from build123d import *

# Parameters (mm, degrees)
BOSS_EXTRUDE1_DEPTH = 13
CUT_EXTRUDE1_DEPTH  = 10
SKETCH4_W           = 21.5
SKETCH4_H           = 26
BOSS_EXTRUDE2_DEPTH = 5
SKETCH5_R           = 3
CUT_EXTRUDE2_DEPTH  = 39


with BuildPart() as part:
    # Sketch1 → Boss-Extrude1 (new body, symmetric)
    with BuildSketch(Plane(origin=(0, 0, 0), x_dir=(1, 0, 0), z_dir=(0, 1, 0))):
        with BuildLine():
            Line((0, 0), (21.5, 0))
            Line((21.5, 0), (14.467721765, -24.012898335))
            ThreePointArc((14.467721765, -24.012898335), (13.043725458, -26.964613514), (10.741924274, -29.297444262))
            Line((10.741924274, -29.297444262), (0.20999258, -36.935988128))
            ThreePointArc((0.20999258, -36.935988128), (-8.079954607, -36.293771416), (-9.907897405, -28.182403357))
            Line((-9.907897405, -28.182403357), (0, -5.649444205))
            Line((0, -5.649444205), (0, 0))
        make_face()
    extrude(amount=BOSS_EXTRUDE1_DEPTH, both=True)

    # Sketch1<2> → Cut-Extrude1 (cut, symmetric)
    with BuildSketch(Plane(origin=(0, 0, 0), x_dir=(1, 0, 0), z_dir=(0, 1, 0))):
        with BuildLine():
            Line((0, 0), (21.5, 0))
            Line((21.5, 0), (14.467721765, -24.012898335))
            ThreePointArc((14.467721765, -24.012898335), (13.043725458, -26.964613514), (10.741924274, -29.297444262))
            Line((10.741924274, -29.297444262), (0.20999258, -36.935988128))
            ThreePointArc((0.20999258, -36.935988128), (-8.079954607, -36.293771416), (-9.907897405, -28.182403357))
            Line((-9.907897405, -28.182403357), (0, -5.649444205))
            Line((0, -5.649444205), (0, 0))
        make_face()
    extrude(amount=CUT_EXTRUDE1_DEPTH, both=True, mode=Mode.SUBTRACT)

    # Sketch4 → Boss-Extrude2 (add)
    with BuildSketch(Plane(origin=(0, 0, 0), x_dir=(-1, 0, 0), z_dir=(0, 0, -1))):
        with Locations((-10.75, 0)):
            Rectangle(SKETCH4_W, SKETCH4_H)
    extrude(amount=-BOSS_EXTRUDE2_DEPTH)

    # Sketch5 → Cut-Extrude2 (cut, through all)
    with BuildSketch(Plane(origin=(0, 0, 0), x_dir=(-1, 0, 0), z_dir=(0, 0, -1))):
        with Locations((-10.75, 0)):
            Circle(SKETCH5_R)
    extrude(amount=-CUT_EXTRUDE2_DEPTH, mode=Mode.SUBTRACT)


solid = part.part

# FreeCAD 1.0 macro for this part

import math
import FreeCAD as App
import Part
import Sketcher


def add_polygon(sketch, points):
    """Adds a closed chain of lines whose ends are joined by coincident constraints."""
    first, n = sketch.GeometryCount, len(points)
    for a, b in zip(points, points[1:] + points[:1]):
        sketch.addGeometry(Part.LineSegment(App.Vector(*a, 0), App.Vector(*b, 0)), False)
    for i in range(n):
        sketch.addConstraint(Sketcher.Constraint("Coincident", first + i, 2, first + (i + 1) % n, 1))

doc = App.newDocument("Part")
body = doc.addObject("PartDesign::Body", "Body")
body.AllowCompound = True

sketch1 = body.newObject("Sketcher::SketchObject", "Sketch")
sketch1.AttachmentSupport = (doc.getObject("XZ_Plane"), [""])
sketch1.MapMode = "FlatFace"
sketch1.addGeometry([
    Part.LineSegment(App.Vector(22, 0, 0), App.Vector(0, 0, 0)),
    Part.LineSegment(App.Vector(0, 0, 0), App.Vector(0, 6, 0)),
    Part.LineSegment(App.Vector(0, 6, 0), App.Vector(-10, 28, 0)),
    Part.ArcOfCircle(Part.Circle(App.Vector(-4, 31, 0), App.Vector(0, 0, 1), 7), math.radians(58), math.radians(204)),
    Part.LineSegment(App.Vector(0, 37, 0), App.Vector(11, 29, 0)),
    Part.ArcOfCircle(Part.Circle(App.Vector(5, 21, 0), App.Vector(0, 0, 1), 10), math.radians(16), math.radians(54)),
    Part.LineSegment(App.Vector(14, 24, 0), App.Vector(22, 0, 0)),
], False)
sketch1.addConstraint([
    Sketcher.Constraint("Coincident", 0, 2, 1, 1),
    Sketcher.Constraint("Coincident", 1, 2, 2, 1),
    Sketcher.Constraint("Tangent", 2, 2, 3, 2),
    Sketcher.Constraint("Coincident", 3, 1, 4, 1),
    Sketcher.Constraint("Tangent", 4, 2, 5, 2),
    Sketcher.Constraint("Tangent", 5, 1, 6, 1),
    Sketcher.Constraint("Coincident", 6, 2, 0, 1),
    Sketcher.Constraint("Horizontal", 0),
    Sketcher.Constraint("Vertical", 1),
    Sketcher.Constraint("Coincident", 0, 2, -1, 1),
    Sketcher.Constraint("Radius", 3, 7.0),
    Sketcher.Constraint("Radius", 5, 10.0),
    Sketcher.Constraint("DistanceX", 0, 2, 0, 1, 21.5),
    Sketcher.Constraint("DistanceY", -1, 1, 3, 3, 31.0),
    Sketcher.Constraint("DistanceX", 3, 3, -1, 1, 3.5),
    Sketcher.Constraint("DistanceY", 1, 2, 4, 2, 23.648),
    Sketcher.Constraint("DistanceY", -1, 1, 5, 1, 24.012898),
    Sketcher.Constraint("DistanceX", 3, 1, 5, 3, 4.660798),
    Sketcher.Constraint("DistanceY", 5, 3, 5, 1, 2.810502),
])
pad1 = body.newObject("PartDesign::Pad", "Pad")
pad1.Profile = sketch1
pad1.Length = 26
pad1.Midplane = True

sketch2 = body.newObject("Sketcher::SketchObject", "Sketch001")
sketch2.AttachmentSupport = (doc.getObject("XZ_Plane"), [""])
sketch2.MapMode = "FlatFace"
sketch2.addGeometry([
    Part.LineSegment(App.Vector(22, 0, 0), App.Vector(0, 0, 0)),
    Part.LineSegment(App.Vector(0, 0, 0), App.Vector(0, 6, 0)),
    Part.LineSegment(App.Vector(0, 6, 0), App.Vector(-10, 28, 0)),
    Part.ArcOfCircle(Part.Circle(App.Vector(-4, 31, 0), App.Vector(0, 0, 1), 7), math.radians(58), math.radians(204)),
    Part.LineSegment(App.Vector(0, 37, 0), App.Vector(11, 29, 0)),
    Part.ArcOfCircle(Part.Circle(App.Vector(5, 21, 0), App.Vector(0, 0, 1), 10), math.radians(16), math.radians(54)),
    Part.LineSegment(App.Vector(14, 24, 0), App.Vector(22, 0, 0)),
], False)
sketch2.addConstraint([
    Sketcher.Constraint("Coincident", 0, 2, 1, 1),
    Sketcher.Constraint("Coincident", 1, 2, 2, 1),
    Sketcher.Constraint("Tangent", 2, 2, 3, 2),
    Sketcher.Constraint("Coincident", 3, 1, 4, 1),
    Sketcher.Constraint("Tangent", 4, 2, 5, 2),
    Sketcher.Constraint("Tangent", 5, 1, 6, 1),
    Sketcher.Constraint("Coincident", 6, 2, 0, 1),
    Sketcher.Constraint("Horizontal", 0),
    Sketcher.Constraint("Vertical", 1),
    Sketcher.Constraint("Coincident", 0, 2, -1, 1),
    Sketcher.Constraint("Radius", 3, 7.0),
    Sketcher.Constraint("Radius", 5, 10.0),
    Sketcher.Constraint("DistanceX", 0, 2, 0, 1, 21.5),
    Sketcher.Constraint("DistanceY", -1, 1, 3, 3, 31.0),
    Sketcher.Constraint("DistanceX", 3, 3, -1, 1, 3.5),
    Sketcher.Constraint("DistanceY", 1, 2, 4, 2, 23.648),
    Sketcher.Constraint("DistanceY", -1, 1, 5, 1, 24.012898),
    Sketcher.Constraint("DistanceX", 3, 1, 5, 3, 4.660798),
    Sketcher.Constraint("DistanceY", 5, 3, 5, 1, 2.810502),
])
pocket1 = body.newObject("PartDesign::Pocket", "Pocket")
pocket1.Profile = sketch2
pocket1.Length = 20
pocket1.Midplane = True

sketch3 = body.newObject("Sketcher::SketchObject", "Sketch002")
sketch3.AttachmentSupport = (doc.getObject("XY_Plane"), [""])
sketch3.MapMode = "FlatFace"
add_polygon(sketch3, [(22, 13), (22, -13), (0, -13), (0, 13)])
sketch3.addConstraint([
    Sketcher.Constraint("Vertical", 0),
    Sketcher.Constraint("Horizontal", 1),
    Sketcher.Constraint("Vertical", 2),
    Sketcher.Constraint("Horizontal", 3),
    Sketcher.Constraint("Symmetric", 1, 2, 2, 2, -1, 1),
    Sketcher.Constraint("DistanceY", 0, 2, 0, 1, 26.0),
    Sketcher.Constraint("DistanceX", 1, 2, 1, 1, 21.5),
])
pad2 = body.newObject("PartDesign::Pad", "Pad001")
pad2.Profile = sketch3
pad2.Length = 5

sketch4 = body.newObject("Sketcher::SketchObject", "Sketch003")
sketch4.AttachmentSupport = (doc.getObject("XY_Plane"), [""])
sketch4.MapMode = "FlatFace"
sketch4.addGeometry(Part.Circle(App.Vector(10.8, 0, 0), App.Vector(0, 0, 1), 3), False)
sketch4.addConstraint([
    Sketcher.Constraint("PointOnObject", 0, 3, -1),
    Sketcher.Constraint("Diameter", 0, 6.0),
    Sketcher.Constraint("DistanceX", -1, 1, 0, 3, 10.75),
])
pocket2 = body.newObject("PartDesign::Pocket", "Pocket001")
pocket2.Profile = sketch4
pocket2.Type = "ThroughAll"
pocket2.Reversed = True

doc.recompute()
